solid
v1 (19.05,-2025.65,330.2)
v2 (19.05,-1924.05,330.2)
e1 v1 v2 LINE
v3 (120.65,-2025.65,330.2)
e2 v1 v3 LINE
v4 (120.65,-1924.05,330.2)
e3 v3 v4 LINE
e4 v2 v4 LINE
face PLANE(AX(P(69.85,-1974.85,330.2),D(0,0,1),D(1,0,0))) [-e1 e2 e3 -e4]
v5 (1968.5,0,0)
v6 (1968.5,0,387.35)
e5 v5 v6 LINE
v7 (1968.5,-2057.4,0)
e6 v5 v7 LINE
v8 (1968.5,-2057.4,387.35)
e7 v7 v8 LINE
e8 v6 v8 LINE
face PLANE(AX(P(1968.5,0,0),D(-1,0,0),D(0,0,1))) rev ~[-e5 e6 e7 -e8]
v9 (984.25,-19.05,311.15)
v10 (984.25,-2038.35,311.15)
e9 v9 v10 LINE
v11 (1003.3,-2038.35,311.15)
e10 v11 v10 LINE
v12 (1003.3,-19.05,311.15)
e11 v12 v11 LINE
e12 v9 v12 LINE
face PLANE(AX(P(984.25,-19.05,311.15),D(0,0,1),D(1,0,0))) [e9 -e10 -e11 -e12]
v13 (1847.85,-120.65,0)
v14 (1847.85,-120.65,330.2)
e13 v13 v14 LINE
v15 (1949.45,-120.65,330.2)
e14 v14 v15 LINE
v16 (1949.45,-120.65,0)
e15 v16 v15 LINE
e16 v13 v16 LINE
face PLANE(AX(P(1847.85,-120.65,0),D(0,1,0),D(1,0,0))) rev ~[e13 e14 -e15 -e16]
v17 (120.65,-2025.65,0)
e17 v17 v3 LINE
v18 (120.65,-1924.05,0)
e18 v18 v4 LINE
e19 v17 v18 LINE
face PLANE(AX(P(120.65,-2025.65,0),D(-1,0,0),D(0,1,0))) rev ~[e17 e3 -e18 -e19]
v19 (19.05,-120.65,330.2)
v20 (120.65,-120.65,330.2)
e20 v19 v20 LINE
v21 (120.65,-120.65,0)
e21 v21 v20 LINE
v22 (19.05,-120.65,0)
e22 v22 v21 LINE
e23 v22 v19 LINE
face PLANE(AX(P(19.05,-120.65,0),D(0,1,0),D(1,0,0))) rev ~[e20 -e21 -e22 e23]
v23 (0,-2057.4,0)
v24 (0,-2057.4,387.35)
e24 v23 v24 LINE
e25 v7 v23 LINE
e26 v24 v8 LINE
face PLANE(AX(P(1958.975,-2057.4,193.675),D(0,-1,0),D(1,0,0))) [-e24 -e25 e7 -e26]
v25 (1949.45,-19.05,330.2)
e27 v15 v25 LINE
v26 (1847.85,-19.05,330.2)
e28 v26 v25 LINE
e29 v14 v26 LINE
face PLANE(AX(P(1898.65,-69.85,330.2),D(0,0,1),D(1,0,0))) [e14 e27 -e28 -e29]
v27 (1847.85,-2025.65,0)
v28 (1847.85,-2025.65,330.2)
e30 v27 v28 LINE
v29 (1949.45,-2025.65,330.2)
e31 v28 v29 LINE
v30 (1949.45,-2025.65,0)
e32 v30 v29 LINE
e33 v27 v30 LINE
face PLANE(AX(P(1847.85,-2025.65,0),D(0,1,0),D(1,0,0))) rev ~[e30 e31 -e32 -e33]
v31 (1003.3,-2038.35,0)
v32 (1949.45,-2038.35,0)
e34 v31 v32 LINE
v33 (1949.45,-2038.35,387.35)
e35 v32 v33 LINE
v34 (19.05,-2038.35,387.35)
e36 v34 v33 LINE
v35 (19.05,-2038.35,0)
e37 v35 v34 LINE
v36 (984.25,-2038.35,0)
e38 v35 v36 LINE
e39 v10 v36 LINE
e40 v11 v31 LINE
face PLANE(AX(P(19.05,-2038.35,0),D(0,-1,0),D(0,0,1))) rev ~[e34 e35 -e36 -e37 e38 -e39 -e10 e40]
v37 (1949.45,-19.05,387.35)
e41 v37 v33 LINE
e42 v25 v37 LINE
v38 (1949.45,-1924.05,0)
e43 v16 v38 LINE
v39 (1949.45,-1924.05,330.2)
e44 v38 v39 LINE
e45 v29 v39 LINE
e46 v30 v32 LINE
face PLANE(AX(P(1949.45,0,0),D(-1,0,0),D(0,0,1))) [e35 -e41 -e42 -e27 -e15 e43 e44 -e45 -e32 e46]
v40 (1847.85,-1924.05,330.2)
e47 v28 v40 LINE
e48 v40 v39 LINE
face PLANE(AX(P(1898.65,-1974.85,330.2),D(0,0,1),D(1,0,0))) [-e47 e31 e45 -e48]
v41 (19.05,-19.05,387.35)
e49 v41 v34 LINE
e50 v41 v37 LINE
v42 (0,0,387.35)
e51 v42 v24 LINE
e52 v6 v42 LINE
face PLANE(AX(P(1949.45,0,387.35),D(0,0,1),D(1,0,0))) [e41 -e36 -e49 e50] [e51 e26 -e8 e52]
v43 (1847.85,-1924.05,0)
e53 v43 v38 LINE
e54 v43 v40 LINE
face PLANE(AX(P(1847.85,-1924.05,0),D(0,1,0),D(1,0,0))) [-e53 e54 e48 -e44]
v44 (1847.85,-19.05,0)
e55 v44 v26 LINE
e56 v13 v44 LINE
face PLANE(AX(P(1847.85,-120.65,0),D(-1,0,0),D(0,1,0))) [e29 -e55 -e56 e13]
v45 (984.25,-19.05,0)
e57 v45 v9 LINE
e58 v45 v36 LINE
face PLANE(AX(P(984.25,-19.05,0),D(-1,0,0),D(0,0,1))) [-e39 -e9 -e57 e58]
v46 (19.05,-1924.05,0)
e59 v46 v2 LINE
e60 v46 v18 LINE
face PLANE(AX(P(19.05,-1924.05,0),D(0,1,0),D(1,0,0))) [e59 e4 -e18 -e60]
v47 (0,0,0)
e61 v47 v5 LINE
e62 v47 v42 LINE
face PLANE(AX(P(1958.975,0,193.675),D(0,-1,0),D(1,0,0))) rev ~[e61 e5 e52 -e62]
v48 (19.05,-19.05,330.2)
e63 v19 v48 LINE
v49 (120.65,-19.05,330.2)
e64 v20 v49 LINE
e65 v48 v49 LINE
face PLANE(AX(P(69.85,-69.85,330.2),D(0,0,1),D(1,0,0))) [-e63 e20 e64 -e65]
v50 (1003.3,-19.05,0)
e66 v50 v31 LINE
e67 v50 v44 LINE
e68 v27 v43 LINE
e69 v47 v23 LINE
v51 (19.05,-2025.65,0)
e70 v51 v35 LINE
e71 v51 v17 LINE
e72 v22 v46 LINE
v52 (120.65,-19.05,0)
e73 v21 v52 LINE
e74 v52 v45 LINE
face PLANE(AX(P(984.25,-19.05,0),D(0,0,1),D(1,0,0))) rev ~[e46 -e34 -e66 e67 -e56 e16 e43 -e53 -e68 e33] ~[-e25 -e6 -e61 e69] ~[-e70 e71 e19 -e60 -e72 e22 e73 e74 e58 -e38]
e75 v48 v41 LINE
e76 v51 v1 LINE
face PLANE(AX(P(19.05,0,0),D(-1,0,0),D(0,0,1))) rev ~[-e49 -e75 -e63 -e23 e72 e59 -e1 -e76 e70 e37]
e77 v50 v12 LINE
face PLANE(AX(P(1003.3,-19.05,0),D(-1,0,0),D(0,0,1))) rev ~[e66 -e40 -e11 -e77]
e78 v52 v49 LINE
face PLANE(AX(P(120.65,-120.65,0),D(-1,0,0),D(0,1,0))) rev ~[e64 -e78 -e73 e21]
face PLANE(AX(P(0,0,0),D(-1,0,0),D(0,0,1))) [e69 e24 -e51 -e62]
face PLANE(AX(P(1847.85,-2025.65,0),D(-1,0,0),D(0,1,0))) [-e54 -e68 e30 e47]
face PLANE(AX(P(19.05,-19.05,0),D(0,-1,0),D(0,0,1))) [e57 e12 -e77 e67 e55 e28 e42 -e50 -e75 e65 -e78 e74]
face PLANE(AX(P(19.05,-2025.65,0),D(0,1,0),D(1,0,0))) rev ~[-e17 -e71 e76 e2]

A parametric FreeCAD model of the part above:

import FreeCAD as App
import Part
import Sketcher

V = App.Vector
Q = App.Units.Quantity

doc = App.newDocument("Part")
body = doc.addObject("PartDesign::Body", "Body")

# Sketch on XZ plane
sketch1 = body.newObject("Sketcher::SketchObject", "Sketch")
sketch1.AttachmentSupport = (doc.getObject("XZ_Plane"), [""])
sketch1.MapMode = "FlatFace"
sketch1.addGeometry(Part.LineSegment(V(0, 387, 0), V(0, 0, 0)), False)
sketch1.addGeometry(Part.LineSegment(V(0, 0, 0), V(19, 0, 0)), False)
sketch1.addGeometry(Part.LineSegment(V(19, 0, 0), V(19, 387, 0)), False)
sketch1.addGeometry(Part.LineSegment(V(19, 387, 0), V(0, 387, 0)), False)
sketch1.addConstraint(Sketcher.Constraint("Coincident", 0, 2, 1, 1))
sketch1.addConstraint(Sketcher.Constraint("Coincident", 1, 2, 2, 1))
sketch1.addConstraint(Sketcher.Constraint("Coincident", 2, 2, 3, 1))
sketch1.addConstraint(Sketcher.Constraint("Coincident", 3, 2, 0, 1))
sketch1.addConstraint(Sketcher.Constraint("Vertical", 0))
sketch1.addConstraint(Sketcher.Constraint("Horizontal", 1))
sketch1.addConstraint(Sketcher.Constraint("Vertical", 2))
sketch1.addConstraint(Sketcher.Constraint("Horizontal", 3))
sketch1.addConstraint(Sketcher.Constraint("Coincident", 0, 2, -1, 1))
sketch1.addConstraint(Sketcher.Constraint("DistanceX", 1, 1, 1, 2, Q("0.75 in")))
sketch1.addConstraint(Sketcher.Constraint("DistanceY", 0, 2, 0, 1, Q("15.25 in")))
pad1 = body.newObject("PartDesign::Pad", "Pad")
pad1.Profile = sketch1
pad1.Length = Q("81 in")

# Sketch on YZ plane
sketch2 = body.newObject("Sketcher::SketchObject", "Sketch001")
sketch2.AttachmentSupport = (doc.getObject("YZ_Plane"), [""])
sketch2.MapMode = "FlatFace"
sketch2.AttachmentOffset = App.Placement(V(0, 0, 0.75 * 25.4), App.Rotation())
sketch2.addGeometry(Part.LineSegment(V(-2057, 387, 0), V(-2057, 0, 0)), False)
sketch2.addGeometry(Part.LineSegment(V(-2057, 0, 0), V(-2038, 0, 0)), False)
sketch2.addGeometry(Part.LineSegment(V(-2038, 0, 0), V(-2038, 387, 0)), False)
sketch2.addGeometry(Part.LineSegment(V(-2038, 387, 0), V(-2057, 387, 0)), False)
sketch2.addConstraint(Sketcher.Constraint("Coincident", 0, 2, 1, 1))
sketch2.addConstraint(Sketcher.Constraint("Coincident", 1, 2, 2, 1))
sketch2.addConstraint(Sketcher.Constraint("Coincident", 2, 2, 3, 1))
sketch2.addConstraint(Sketcher.Constraint("Coincident", 3, 2, 0, 1))
sketch2.addConstraint(Sketcher.Constraint("Vertical", 0))
sketch2.addConstraint(Sketcher.Constraint("Horizontal", 1))
sketch2.addConstraint(Sketcher.Constraint("Vertical", 2))
sketch2.addConstraint(Sketcher.Constraint("Horizontal", 3))
sketch2.addConstraint(Sketcher.Constraint("PointOnObject", 0, 2, -1))
sketch2.addConstraint(Sketcher.Constraint("DistanceX", 0, 2, -1, 1, Q("81 in")))
sketch2.addConstraint(Sketcher.Constraint("DistanceX", 1, 1, 1, 2, Q("0.75 in")))
sketch2.addConstraint(Sketcher.Constraint("DistanceY", 0, 2, 0, 1, Q("15.25 in")))
pad2 = body.newObject("PartDesign::Pad", "Pad001")
pad2.Profile = sketch2
pad2.Length = Q("76 in")

# Sketch on YZ plane
sketch3 = body.newObject("Sketcher::SketchObject", "Sketch002")
sketch3.AttachmentSupport = (doc.getObject("YZ_Plane"), [""])
sketch3.MapMode = "FlatFace"
sketch3.AttachmentOffset = App.Placement(V(0, 0, 0.75 * 25.4), App.Rotation())
sketch3.addGeometry(Part.LineSegment(V(-19, 387, 0), V(-19, 0, 0)), False)
sketch3.addGeometry(Part.LineSegment(V(-19, 0, 0), V(0, 0, 0)), False)
sketch3.addGeometry(Part.LineSegment(V(0, 0, 0), V(0, 387, 0)), False)
sketch3.addGeometry(Part.LineSegment(V(0, 387, 0), V(-19, 387, 0)), False)
sketch3.addConstraint(Sketcher.Constraint("Coincident", 0, 2, 1, 1))
sketch3.addConstraint(Sketcher.Constraint("Coincident", 1, 2, 2, 1))
sketch3.addConstraint(Sketcher.Constraint("Coincident", 2, 2, 3, 1))
sketch3.addConstraint(Sketcher.Constraint("Coincident", 3, 2, 0, 1))
sketch3.addConstraint(Sketcher.Constraint("Vertical", 0))
sketch3.addConstraint(Sketcher.Constraint("Horizontal", 1))
sketch3.addConstraint(Sketcher.Constraint("Vertical", 2))
sketch3.addConstraint(Sketcher.Constraint("Horizontal", 3))
sketch3.addConstraint(Sketcher.Constraint("Coincident", 1, 2, -1, 1))
sketch3.addConstraint(Sketcher.Constraint("DistanceX", 1, 1, 1, 2, Q("0.75 in")))
sketch3.addConstraint(Sketcher.Constraint("DistanceY", 0, 2, 0, 1, Q("15.25 in")))
pad3 = body.newObject("PartDesign::Pad", "Pad002")
pad3.Profile = sketch3
pad3.Length = Q("76 in")

# Sketch on XZ plane
sketch4 = body.newObject("Sketcher::SketchObject", "Sketch003")
sketch4.AttachmentSupport = (doc.getObject("XZ_Plane"), [""])
sketch4.MapMode = "FlatFace"
sketch4.addGeometry(Part.LineSegment(V(1949, 387, 0), V(1949, 0, 0)), False)
sketch4.addGeometry(Part.LineSegment(V(1949, 0, 0), V(1968, 0, 0)), False)
sketch4.addGeometry(Part.LineSegment(V(1968, 0, 0), V(1968, 387, 0)), False)
sketch4.addGeometry(Part.LineSegment(V(1968, 387, 0), V(1949, 387, 0)), False)
sketch4.addConstraint(Sketcher.Constraint("Coincident", 0, 2, 1, 1))
sketch4.addConstraint(Sketcher.Constraint("Coincident", 1, 2, 2, 1))
sketch4.addConstraint(Sketcher.Constraint("Coincident", 2, 2, 3, 1))
sketch4.addConstraint(Sketcher.Constraint("Coincident", 3, 2, 0, 1))
sketch4.addConstraint(Sketcher.Constraint("Vertical", 0))
sketch4.addConstraint(Sketcher.Constraint("Horizontal", 1))
sketch4.addConstraint(Sketcher.Constraint("Vertical", 2))
sketch4.addConstraint(Sketcher.Constraint("Horizontal", 3))
sketch4.addConstraint(Sketcher.Constraint("PointOnObject", 0, 2, -1))
sketch4.addConstraint(Sketcher.Constraint("DistanceX", 1, 1, 1, 2, Q("0.75 in")))
sketch4.addConstraint(Sketcher.Constraint("DistanceY", 0, 2, 0, 1, Q("15.25 in")))
sketch4.addConstraint(Sketcher.Constraint("DistanceX", -1, 1, 1, 2, Q("77.5 in")))
pad4 = body.newObject("PartDesign::Pad", "Pad003")
pad4.Profile = sketch4
pad4.Length = Q("81 in")

# Sketch on XY plane
sketch5 = body.newObject("Sketcher::SketchObject", "Sketch004")
sketch5.AttachmentSupport = (doc.getObject("XY_Plane"), [""])
sketch5.MapMode = "FlatFace"
sketch5.addGeometry(Part.LineSegment(V(19, -19, 0), V(19, -121, 0)), False)
sketch5.addGeometry(Part.LineSegment(V(19, -121, 0), V(121, -121, 0)), False)
sketch5.addGeometry(Part.LineSegment(V(121, -121, 0), V(121, -19, 0)), False)
sketch5.addGeometry(Part.LineSegment(V(121, -19, 0), V(19, -19, 0)), False)
sketch5.addGeometry(Part.LineSegment(V(1848, -19, 0), V(1848, -121, 0)), False)
sketch5.addGeometry(Part.LineSegment(V(1848, -121, 0), V(1949, -121, 0)), False)
sketch5.addGeometry(Part.LineSegment(V(1949, -121, 0), V(1949, -19, 0)), False)
sketch5.addGeometry(Part.LineSegment(V(1949, -19, 0), V(1848, -19, 0)), False)
sketch5.addGeometry(Part.LineSegment(V(1848, -1924, 0), V(1848, -2026, 0)), False)
sketch5.addGeometry(Part.LineSegment(V(1848, -2026, 0), V(1949, -2026, 0)), False)
sketch5.addGeometry(Part.LineSegment(V(1949, -2026, 0), V(1949, -1924, 0)), False)
sketch5.addGeometry(Part.LineSegment(V(1949, -1924, 0), V(1848, -1924, 0)), False)
sketch5.addGeometry(Part.LineSegment(V(19, -1924, 0), V(19, -2026, 0)), False)
sketch5.addGeometry(Part.LineSegment(V(19, -2026, 0), V(121, -2026, 0)), False)
sketch5.addGeometry(Part.LineSegment(V(121, -2026, 0), V(121, -1924, 0)), False)
sketch5.addGeometry(Part.LineSegment(V(121, -1924, 0), V(19, -1924, 0)), False)
sketch5.addConstraint(Sketcher.Constraint("Coincident", 0, 2, 1, 1))
sketch5.addConstraint(Sketcher.Constraint("Coincident", 1, 2, 2, 1))
sketch5.addConstraint(Sketcher.Constraint("Coincident", 2, 2, 3, 1))
sketch5.addConstraint(Sketcher.Constraint("Coincident", 3, 2, 0, 1))
sketch5.addConstraint(Sketcher.Constraint("Coincident", 4, 2, 5, 1))
sketch5.addConstraint(Sketcher.Constraint("Coincident", 5, 2, 6, 1))
sketch5.addConstraint(Sketcher.Constraint("Coincident", 6, 2, 7, 1))
sketch5.addConstraint(Sketcher.Constraint("Coincident", 7, 2, 4, 1))
sketch5.addConstraint(Sketcher.Constraint("Coincident", 8, 2, 9, 1))
sketch5.addConstraint(Sketcher.Constraint("Coincident", 9, 2, 10, 1))
sketch5.addConstraint(Sketcher.Constraint("Coincident", 10, 2, 11, 1))
sketch5.addConstraint(Sketcher.Constraint("Coincident", 11, 2, 8, 1))
sketch5.addConstraint(Sketcher.Constraint("Coincident", 12, 2, 13, 1))
sketch5.addConstraint(Sketcher.Constraint("Coincident", 13, 2, 14, 1))
sketch5.addConstraint(Sketcher.Constraint("Coincident", 14, 2, 15, 1))
sketch5.addConstraint(Sketcher.Constraint("Coincident", 15, 2, 12, 1))
sketch5.addConstraint(Sketcher.Constraint("Vertical", 0))
sketch5.addConstraint(Sketcher.Constraint("Horizontal", 1))
sketch5.addConstraint(Sketcher.Constraint("Vertical", 2))
sketch5.addConstraint(Sketcher.Constraint("Horizontal", 3))
sketch5.addConstraint(Sketcher.Constraint("Vertical", 4))
sketch5.addConstraint(Sketcher.Constraint("Horizontal", 5))
sketch5.addConstraint(Sketcher.Constraint("Vertical", 6))
sketch5.addConstraint(Sketcher.Constraint("Horizontal", 7))
sketch5.addConstraint(Sketcher.Constraint("Vertical", 8))
sketch5.addConstraint(Sketcher.Constraint("Horizontal", 9))
sketch5.addConstraint(Sketcher.Constraint("Vertical", 10))
sketch5.addConstraint(Sketcher.Constraint("Horizontal", 11))
sketch5.addConstraint(Sketcher.Constraint("Vertical", 12))
sketch5.addConstraint(Sketcher.Constraint("Horizontal", 13))
sketch5.addConstraint(Sketcher.Constraint("Vertical", 14))
sketch5.addConstraint(Sketcher.Constraint("Horizontal", 15))
sketch5.addConstraint(Sketcher.Constraint("Horizontal", 1, 2, 4, 2))
sketch5.addConstraint(Sketcher.Constraint("Horizontal", 3, 2, 6, 2))
sketch5.addConstraint(Sketcher.Constraint("Horizontal", 9, 2, 12, 2))
sketch5.addConstraint(Sketcher.Constraint("Horizontal", 11, 2, 14, 2))
sketch5.addConstraint(Sketcher.Constraint("Vertical", 7, 2, 8, 2))
sketch5.addConstraint(Sketcher.Constraint("Vertical", 6, 2, 9, 2))
sketch5.addConstraint(Sketcher.Constraint("Vertical", 3, 2, 12, 2))
sketch5.addConstraint(Sketcher.Constraint("Vertical", 2, 2, 13, 2))
sketch5.addConstraint(Sketcher.Constraint("Equal", 3, 5))
sketch5.addConstraint(Sketcher.Constraint("Equal", 15, 0))
sketch5.addConstraint(Sketcher.Constraint("Equal", 6, 8))
sketch5.addConstraint(Sketcher.Constraint("DistanceX", 1, 1, 1, 2, Q("4 in")))
sketch5.addConstraint(Sketcher.Constraint("DistanceX", 1, 2, 4, 2, Q("68 in")))
sketch5.addConstraint(Sketcher.Constraint("DistanceY", 8, 2, 4, 2, Q("75 in")))
sketch5.addConstraint(Sketcher.Constraint("DistanceX", -1, 1, 0, 2, Q("0.75 in")))
sketch5.addConstraint(Sketcher.Constraint("DistanceY", 0, 2, -1, 1, Q("4.75 in")))
pad5 = body.newObject("PartDesign::Pad", "Pad004")
pad5.Profile = sketch5
pad5.Length = Q("13 in")

# Sketch on XZ plane
sketch6 = body.newObject("Sketcher::SketchObject", "Sketch005")
sketch6.AttachmentSupport = (doc.getObject("XZ_Plane"), [""])
sketch6.MapMode = "FlatFace"
sketch6.AttachmentOffset = App.Placement(V(0, 0, 0.75 * 25.4), App.Rotation())
sketch6.addGeometry(Part.LineSegment(V(984, 311, 0), V(984, 0, 0)), False)
sketch6.addGeometry(Part.LineSegment(V(984, 0, 0), V(1003, 0, 0)), False)
sketch6.addGeometry(Part.LineSegment(V(1003, 0, 0), V(1003, 311, 0)), False)
sketch6.addGeometry(Part.LineSegment(V(1003, 311, 0), V(984, 311, 0)), False)
sketch6.addConstraint(Sketcher.Constraint("Coincident", 0, 2, 1, 1))
sketch6.addConstraint(Sketcher.Constraint("Coincident", 1, 2, 2, 1))
sketch6.addConstraint(Sketcher.Constraint("Coincident", 2, 2, 3, 1))
sketch6.addConstraint(Sketcher.Constraint("Coincident", 3, 2, 0, 1))
sketch6.addConstraint(Sketcher.Constraint("Vertical", 0))
sketch6.addConstraint(Sketcher.Constraint("Horizontal", 1))
sketch6.addConstraint(Sketcher.Constraint("Vertical", 2))
sketch6.addConstraint(Sketcher.Constraint("Horizontal", 3))
sketch6.addConstraint(Sketcher.Constraint("PointOnObject", 0, 2, -1))
sketch6.addConstraint(Sketcher.Constraint("DistanceX", 1, 1, 1, 2, Q("0.75 in")))
sketch6.addConstraint(Sketcher.Constraint("DistanceY", 0, 2, 0, 1, Q("12.25 in")))
sketch6.addConstraint(Sketcher.Constraint("DistanceX", -1, 1, 1, 2, Q("39.5 in")))
pad6 = body.newObject("PartDesign::Pad", "Pad005")
pad6.Profile = sketch6
pad6.Length = Q("79.75 in")

doc.recompute()
